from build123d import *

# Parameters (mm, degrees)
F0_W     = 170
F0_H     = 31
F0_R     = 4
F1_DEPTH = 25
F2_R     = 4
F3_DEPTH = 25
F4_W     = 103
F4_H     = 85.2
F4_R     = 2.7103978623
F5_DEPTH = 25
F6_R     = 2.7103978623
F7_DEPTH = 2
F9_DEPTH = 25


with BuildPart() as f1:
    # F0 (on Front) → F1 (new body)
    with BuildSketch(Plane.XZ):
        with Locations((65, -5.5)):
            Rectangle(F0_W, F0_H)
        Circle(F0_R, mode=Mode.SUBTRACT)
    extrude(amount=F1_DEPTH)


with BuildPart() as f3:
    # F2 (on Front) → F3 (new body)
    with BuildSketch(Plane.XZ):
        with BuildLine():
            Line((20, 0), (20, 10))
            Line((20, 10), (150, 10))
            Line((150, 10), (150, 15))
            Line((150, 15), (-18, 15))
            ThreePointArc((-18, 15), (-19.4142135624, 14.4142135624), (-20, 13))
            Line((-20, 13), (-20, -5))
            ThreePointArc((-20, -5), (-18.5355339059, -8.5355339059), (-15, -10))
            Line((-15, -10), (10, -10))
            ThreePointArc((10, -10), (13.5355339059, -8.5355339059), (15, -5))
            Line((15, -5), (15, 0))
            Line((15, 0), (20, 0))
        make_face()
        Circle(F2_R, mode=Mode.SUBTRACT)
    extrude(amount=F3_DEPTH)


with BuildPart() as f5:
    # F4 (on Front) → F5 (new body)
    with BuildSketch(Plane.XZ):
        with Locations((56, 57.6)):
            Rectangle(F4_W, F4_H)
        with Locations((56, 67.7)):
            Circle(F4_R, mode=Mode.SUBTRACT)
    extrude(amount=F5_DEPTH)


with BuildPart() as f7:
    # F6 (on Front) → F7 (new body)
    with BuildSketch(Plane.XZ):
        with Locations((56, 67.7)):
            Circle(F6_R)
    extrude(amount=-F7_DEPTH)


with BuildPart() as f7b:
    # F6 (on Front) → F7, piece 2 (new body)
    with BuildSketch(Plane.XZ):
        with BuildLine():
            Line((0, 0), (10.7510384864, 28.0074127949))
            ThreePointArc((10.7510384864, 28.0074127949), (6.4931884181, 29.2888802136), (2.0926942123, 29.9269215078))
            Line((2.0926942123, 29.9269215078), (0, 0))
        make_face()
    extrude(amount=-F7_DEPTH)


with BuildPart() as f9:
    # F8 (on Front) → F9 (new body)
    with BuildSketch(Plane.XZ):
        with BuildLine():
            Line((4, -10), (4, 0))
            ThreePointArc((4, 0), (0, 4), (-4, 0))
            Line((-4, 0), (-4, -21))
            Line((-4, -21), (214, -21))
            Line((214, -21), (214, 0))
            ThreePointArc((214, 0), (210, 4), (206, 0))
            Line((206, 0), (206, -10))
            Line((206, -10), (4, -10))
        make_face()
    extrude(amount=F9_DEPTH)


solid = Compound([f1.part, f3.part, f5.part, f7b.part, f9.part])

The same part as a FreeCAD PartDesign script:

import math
import FreeCAD as App
import Part
import Sketcher
from FreeCAD import Vector
Q = App.Units.Quantity

doc = App.newDocument("Part")
params = doc.addObject("Spreadsheet::Sheet", "Params")
for row, (alias, value) in enumerate([
    ("sketch1_diameter", "8 mm"),
    ("sketch1_width", "170 mm"),
    ("sketch1_height", "31 mm"),
    ("pad1_length", "25 mm"),
    ("sketch2_diameter", "8 mm"),
    ("sketch2_radius", "2 mm"),
    ("sketch2_radius2", "5 mm"),
    ("sketch2_width", "130 mm"),
    ("sketch2_width2", "168 mm"),
    ("pad2_length", "25 mm"),
    ("sketch3_width", "103 mm"),
    ("sketch3_height", "85.2 mm"),
    ("pad3_length", "25 mm"),
    ("pad4_length", "2 mm"),
    ("sketch5_radius", "30 mm"),
    ("pad5_length", "2 mm"),
    ("sketch6_radius", "4 mm"),
    ("sketch6_width", "218 mm"),
    ("sketch6_height", "10 mm"),
    ("sketch6_height2", "21 mm"),
    ("pad6_length", "25 mm"),
], start=1):
    params.set(f"A{row}", alias)
    params.set(f"B{row}", "=" + value)
    params.setAlias(f"B{row}", alias)

body = doc.addObject("PartDesign::Body", "Body")

# Sketch on XZ plane
sketch1 = body.newObject("Sketcher::SketchObject", "Sketch")
sketch1.AttachmentSupport = (doc.getObject("XZ_Plane"), [""])
sketch1.MapMode = "FlatFace"
sketch1.addGeometry([
    Part.LineSegment(Vector(-20, 10, 0), Vector(-20, -21, 0)),  # 0
    Part.LineSegment(Vector(-20, -21, 0), Vector(150, -21, 0)),  # 1
    Part.LineSegment(Vector(150, -21, 0), Vector(150, 10, 0)),  # 2
    Part.LineSegment(Vector(150, 10, 0), Vector(-20, 10, 0)),  # 3
    Part.Circle(Vector(0, 0, 0), Vector(0, 0, 1), 4),  # 4
], False)
sketch1.addConstraint([
    Sketcher.Constraint("Coincident", 0, 2, 1, 1),
    Sketcher.Constraint("Coincident", 1, 2, 2, 1),
    Sketcher.Constraint("Coincident", 2, 2, 3, 1),
    Sketcher.Constraint("Coincident", 3, 2, 0, 1),
    Sketcher.Constraint("Vertical", 0),
    Sketcher.Constraint("Horizontal", 1),
    Sketcher.Constraint("Vertical", 2),
    Sketcher.Constraint("Horizontal", 3),
    Sketcher.Constraint("Coincident", 4, 3, -1, 1),
    Sketcher.Constraint("Diameter", 4, 8.0),
    Sketcher.Constraint("DistanceX", 1, 1, 1, 2, 170.0),
    Sketcher.Constraint("DistanceY", 0, 2, 0, 1, 31.0),
    Sketcher.Constraint("DistanceX", 0, 2, -1, 1, 20.0),
    Sketcher.Constraint("DistanceY", 0, 2, -1, 1, 21.0),
])
sketch1.setExpression("Constraints[9]", "Params.sketch1_diameter")
sketch1.setExpression("Constraints[10]", "Params.sketch1_width")
sketch1.setExpression("Constraints[11]", "Params.sketch1_height")
pad1 = body.newObject("PartDesign::Pad", "Pad")
pad1.Profile = sketch1
pad1.setExpression("Length", "Params.pad1_length")
body2 = doc.addObject("PartDesign::Body", "Body001")

# Sketch on XZ plane
sketch2 = body2.newObject("Sketcher::SketchObject", "Sketch001")
sketch2.AttachmentSupport = (doc.getObject("XZ_Plane001"), [""])
sketch2.MapMode = "FlatFace"
sketch2.addGeometry([
    Part.LineSegment(Vector(20, 0, 0), Vector(20, 10, 0)),  # 0
    Part.LineSegment(Vector(20, 10, 0), Vector(150, 10, 0)),  # 1
    Part.LineSegment(Vector(150, 10, 0), Vector(150, 15, 0)),  # 2
    Part.LineSegment(Vector(150, 15, 0), Vector(-18, 15, 0)),  # 3
    Part.ArcOfCircle(Part.Circle(Vector(-18, 13, 0), Vector(0, 0, 1), 2), math.radians(90), math.radians(180)),  # 4
    Part.LineSegment(Vector(-20, 13, 0), Vector(-20, -5, 0)),  # 5
    Part.ArcOfCircle(Part.Circle(Vector(-15, -5, 0), Vector(0, 0, 1), 5), math.radians(180), math.radians(270)),  # 6
    Part.LineSegment(Vector(-15, -10, 0), Vector(10, -10, 0)),  # 7
    Part.ArcOfCircle(Part.Circle(Vector(10, -5, 0), Vector(0, 0, 1), 5), math.radians(-90), math.radians(0)),  # 8
    Part.LineSegment(Vector(15, -5, 0), Vector(15, 0, 0)),  # 9
    Part.LineSegment(Vector(15, 0, 0), Vector(20, 0, 0)),  # 10
    Part.Circle(Vector(0, 0, 0), Vector(0, 0, 1), 4),  # 11
], False)
sketch2.addConstraint([
    Sketcher.Constraint("Coincident", 0, 2, 1, 1),
    Sketcher.Constraint("Coincident", 1, 2, 2, 1),
    Sketcher.Constraint("Coincident", 2, 2, 3, 1),
    Sketcher.Constraint("Tangent", 3, 2, 4, 1),
    Sketcher.Constraint("Tangent", 4, 2, 5, 1),
    Sketcher.Constraint("Tangent", 5, 2, 6, 1),
    Sketcher.Constraint("Tangent", 6, 2, 7, 1),
    Sketcher.Constraint("Tangent", 7, 2, 8, 1),
    Sketcher.Constraint("Tangent", 8, 2, 9, 1),
    Sketcher.Constraint("Coincident", 9, 2, 10, 1),
    Sketcher.Constraint("Coincident", 10, 2, 0, 1),
    Sketcher.Constraint("Vertical", 0),
    Sketcher.Constraint("Horizontal", 1),
    Sketcher.Constraint("Vertical", 2),
    Sketcher.Constraint("Horizontal", 3),
    Sketcher.Constraint("Vertical", 5),
    Sketcher.Constraint("Horizontal", 7),
    Sketcher.Constraint("Vertical", 9),
    Sketcher.Constraint("Horizontal", 10),
    Sketcher.Constraint("Coincident", 11, 3, -1, 1),
    Sketcher.Constraint("Equal", 6, 8),
    Sketcher.Constraint("PointOnObject", 9, 2, -1),
    Sketcher.Constraint("Equal", 10, 2),
    Sketcher.Constraint("Equal", 2, 9),
    Sketcher.Constraint("Diameter", 11, 8.0),
    Sketcher.Constraint("Radius", 4, 2.0),
    Sketcher.Constraint("Radius", 6, 5.0),
    Sketcher.Constraint("DistanceX", 1, 1, 1, 2, 130.0),
    Sketcher.Constraint("DistanceX", 3, 2, 3, 1, 168.0),
    Sketcher.Constraint("DistanceX", 7, 1, 7, 2, 25.0),
    Sketcher.Constraint("DistanceY", 0, 1, 0, 2, 10.0),
    Sketcher.Constraint("DistanceX", 4, 3, -1, 1, 18.0),
])
sketch2.setExpression("Constraints[24]", "Params.sketch2_diameter")
sketch2.setExpression("Constraints[25]", "Params.sketch2_radius")
sketch2.setExpression("Constraints[26]", "Params.sketch2_radius2")
sketch2.setExpression("Constraints[27]", "Params.sketch2_width")
sketch2.setExpression("Constraints[28]", "Params.sketch2_width2")
pad2 = body2.newObject("PartDesign::Pad", "Pad001")
pad2.Profile = sketch2
pad2.setExpression("Length", "Params.pad2_length")
body3 = doc.addObject("PartDesign::Body", "Body002")

# Sketch on XZ plane
sketch3 = body3.newObject("Sketcher::SketchObject", "Sketch002")
sketch3.AttachmentSupport = (doc.getObject("XZ_Plane002"), [""])
sketch3.MapMode = "FlatFace"
sketch3.addGeometry([
    Part.LineSegment(Vector(4.5, 100.2, 0), Vector(4.5, 15, 0)),  # 0
    Part.LineSegment(Vector(4.5, 15, 0), Vector(107.5, 15, 0)),  # 1
    Part.LineSegment(Vector(107.5, 15, 0), Vector(107.5, 100.2, 0)),  # 2
    Part.LineSegment(Vector(107.5, 100.2, 0), Vector(4.5, 100.2, 0)),  # 3
    Part.Circle(Vector(56, 67.7, 0), Vector(0, 0, 1), 2.7),  # 4
], False)
sketch3.addConstraint([
    Sketcher.Constraint("Coincident", 0, 2, 1, 1),
    Sketcher.Constraint("Coincident", 1, 2, 2, 1),
    Sketcher.Constraint("Coincident", 2, 2, 3, 1),
    Sketcher.Constraint("Coincident", 3, 2, 0, 1),
    Sketcher.Constraint("Vertical", 0),
    Sketcher.Constraint("Horizontal", 1),
    Sketcher.Constraint("Vertical", 2),
    Sketcher.Constraint("Horizontal", 3),
    Sketcher.Constraint("DistanceX", 1, 1, 1, 2, 103.0),
    Sketcher.Constraint("DistanceY", 0, 2, 0, 1, 85.2),
    Sketcher.Constraint("DistanceX", -1, 1, 4, 3, 56.0),
    Sketcher.Constraint("DistanceY", -1, 1, 0, 2, 15.0),
    Sketcher.Constraint("DistanceY", -1, 1, 4, 3, 67.7),
    Sketcher.Constraint("DistanceX", -1, 1, 0, 2, 4.5),
    Sketcher.Constraint("Diameter", 4, 5.420796),
])
sketch3.setExpression("Constraints[8]", "Params.sketch3_width")
sketch3.setExpression("Constraints[9]", "Params.sketch3_height")
pad3 = body3.newObject("PartDesign::Pad", "Pad002")
pad3.Profile = sketch3
pad3.setExpression("Length", "Params.pad3_length")
body4 = doc.addObject("PartDesign::Body", "Body003")

# Sketch on XZ plane
sketch4 = body4.newObject("Sketcher::SketchObject", "Sketch003")
sketch4.AttachmentSupport = (doc.getObject("XZ_Plane003"), [""])
sketch4.MapMode = "FlatFace"
sketch4.addGeometry(Part.Circle(Vector(56, 67.7, 0), Vector(0, 0, 1), 2.7), False)
sketch4.addConstraint([
    Sketcher.Constraint("DistanceX", -1, 1, 0, 3, 56.0),
    Sketcher.Constraint("DistanceY", -1, 1, 0, 3, 67.7),
    Sketcher.Constraint("Diameter", 0, 5.420796),
])
pad4 = body4.newObject("PartDesign::Pad", "Pad003")
pad4.Profile = sketch4
pad4.setExpression("Length", "Params.pad4_length")
pad4.Reversed = True
body5 = doc.addObject("PartDesign::Body", "Body004")

# Sketch on XZ plane
sketch5 = body5.newObject("Sketcher::SketchObject", "Sketch004")
sketch5.AttachmentSupport = (doc.getObject("XZ_Plane004"), [""])
sketch5.MapMode = "FlatFace"
sketch5.addGeometry([
    Part.LineSegment(Vector(0, 0, 0), Vector(11, 28, 0)),
    Part.ArcOfCircle(Part.Circle(Vector(0, 0, 0), Vector(0, 0, 1), 30), math.radians(69), math.radians(86)),
    Part.LineSegment(Vector(2, 30, 0), Vector(0, 0, 0)),
], False)
sketch5.addConstraint([
    Sketcher.Constraint("Coincident", 0, 2, 1, 1),
    Sketcher.Constraint("Coincident", 1, 2, 2, 1),
    Sketcher.Constraint("Coincident", 2, 2, 0, 1),
    Sketcher.Constraint("Coincident", 1, 3, -1, 1),
    Sketcher.Constraint("Coincident", 2, 2, -1, 1),
    Sketcher.Constraint("Radius", 1, 30.0),
    Sketcher.Constraint("Angle", 0, Q("69 deg")),
    Sketcher.Constraint("Angle", 2, Q("-94 deg")),
])
sketch5.setExpression("Constraints[5]", "Params.sketch5_radius")
pad5 = body5.newObject("PartDesign::Pad", "Pad004")
pad5.Profile = sketch5
pad5.setExpression("Length", "Params.pad5_length")
pad5.Reversed = True
body6 = doc.addObject("PartDesign::Body", "Body005")

# Sketch on XZ plane
sketch6 = body6.newObject("Sketcher::SketchObject", "Sketch005")
sketch6.AttachmentSupport = (doc.getObject("XZ_Plane005"), [""])
sketch6.MapMode = "FlatFace"
sketch6.addGeometry([
    Part.LineSegment(Vector(4, -10, 0), Vector(4, 0, 0)),  # 0
    Part.ArcOfCircle(Part.Circle(Vector(0, 0, 0), Vector(0, 0, 1), 4), math.radians(0), math.radians(180)),  # 1
    Part.LineSegment(Vector(-4, 0, 0), Vector(-4, -21, 0)),  # 2
    Part.LineSegment(Vector(-4, -21, 0), Vector(214, -21, 0)),  # 3
    Part.LineSegment(Vector(214, -21, 0), Vector(214, 0, 0)),  # 4
    Part.ArcOfCircle(Part.Circle(Vector(210, 0, 0), Vector(0, 0, 1), 4), math.radians(0), math.radians(180)),  # 5
    Part.LineSegment(Vector(206, 0, 0), Vector(206, -10, 0)),  # 6
    Part.LineSegment(Vector(206, -10, 0), Vector(4, -10, 0)),  # 7
], False)
sketch6.addConstraint([
    Sketcher.Constraint("Tangent", 0, 2, 1, 1),
    Sketcher.Constraint("Tangent", 1, 2, 2, 1),
    Sketcher.Constraint("Coincident", 2, 2, 3, 1),
    Sketcher.Constraint("Coincident", 3, 2, 4, 1),
    Sketcher.Constraint("Tangent", 4, 2, 5, 1),
    Sketcher.Constraint("Tangent", 5, 2, 6, 1),
    Sketcher.Constraint("Coincident", 6, 2, 7, 1),
    Sketcher.Constraint("Coincident", 7, 2, 0, 1),
    Sketcher.Constraint("Vertical", 0),
    Sketcher.Constraint("Vertical", 2),
    Sketcher.Constraint("Horizontal", 3),
    Sketcher.Constraint("Vertical", 4),
    Sketcher.Constraint("Vertical", 6),
    Sketcher.Constraint("Horizontal", 7),
    Sketcher.Constraint("Coincident", 1, 3, -1, 1),
    Sketcher.Constraint("Equal", 1, 5),
    Sketcher.Constraint("PointOnObject", 5, 3, -1),
    Sketcher.Constraint("Radius", 1, 4.0),
    Sketcher.Constraint("DistanceX", 3, 1, 3, 2, 218.0),
    Sketcher.Constraint("DistanceY", 0, 1, 0, 2, 10.0),
    Sketcher.Constraint("DistanceY", 2, 2, 2, 1, 21.0),
])
sketch6.setExpression("Constraints[17]", "Params.sketch6_radius")
sketch6.setExpression("Constraints[18]", "Params.sketch6_width")
sketch6.setExpression("Constraints[19]", "Params.sketch6_height")
sketch6.setExpression("Constraints[20]", "Params.sketch6_height2")
pad6 = body6.newObject("PartDesign::Pad", "Pad005")
pad6.Profile = sketch6
pad6.setExpression("Length", "Params.pad6_length")
body4.Visibility = False

doc.recompute()
